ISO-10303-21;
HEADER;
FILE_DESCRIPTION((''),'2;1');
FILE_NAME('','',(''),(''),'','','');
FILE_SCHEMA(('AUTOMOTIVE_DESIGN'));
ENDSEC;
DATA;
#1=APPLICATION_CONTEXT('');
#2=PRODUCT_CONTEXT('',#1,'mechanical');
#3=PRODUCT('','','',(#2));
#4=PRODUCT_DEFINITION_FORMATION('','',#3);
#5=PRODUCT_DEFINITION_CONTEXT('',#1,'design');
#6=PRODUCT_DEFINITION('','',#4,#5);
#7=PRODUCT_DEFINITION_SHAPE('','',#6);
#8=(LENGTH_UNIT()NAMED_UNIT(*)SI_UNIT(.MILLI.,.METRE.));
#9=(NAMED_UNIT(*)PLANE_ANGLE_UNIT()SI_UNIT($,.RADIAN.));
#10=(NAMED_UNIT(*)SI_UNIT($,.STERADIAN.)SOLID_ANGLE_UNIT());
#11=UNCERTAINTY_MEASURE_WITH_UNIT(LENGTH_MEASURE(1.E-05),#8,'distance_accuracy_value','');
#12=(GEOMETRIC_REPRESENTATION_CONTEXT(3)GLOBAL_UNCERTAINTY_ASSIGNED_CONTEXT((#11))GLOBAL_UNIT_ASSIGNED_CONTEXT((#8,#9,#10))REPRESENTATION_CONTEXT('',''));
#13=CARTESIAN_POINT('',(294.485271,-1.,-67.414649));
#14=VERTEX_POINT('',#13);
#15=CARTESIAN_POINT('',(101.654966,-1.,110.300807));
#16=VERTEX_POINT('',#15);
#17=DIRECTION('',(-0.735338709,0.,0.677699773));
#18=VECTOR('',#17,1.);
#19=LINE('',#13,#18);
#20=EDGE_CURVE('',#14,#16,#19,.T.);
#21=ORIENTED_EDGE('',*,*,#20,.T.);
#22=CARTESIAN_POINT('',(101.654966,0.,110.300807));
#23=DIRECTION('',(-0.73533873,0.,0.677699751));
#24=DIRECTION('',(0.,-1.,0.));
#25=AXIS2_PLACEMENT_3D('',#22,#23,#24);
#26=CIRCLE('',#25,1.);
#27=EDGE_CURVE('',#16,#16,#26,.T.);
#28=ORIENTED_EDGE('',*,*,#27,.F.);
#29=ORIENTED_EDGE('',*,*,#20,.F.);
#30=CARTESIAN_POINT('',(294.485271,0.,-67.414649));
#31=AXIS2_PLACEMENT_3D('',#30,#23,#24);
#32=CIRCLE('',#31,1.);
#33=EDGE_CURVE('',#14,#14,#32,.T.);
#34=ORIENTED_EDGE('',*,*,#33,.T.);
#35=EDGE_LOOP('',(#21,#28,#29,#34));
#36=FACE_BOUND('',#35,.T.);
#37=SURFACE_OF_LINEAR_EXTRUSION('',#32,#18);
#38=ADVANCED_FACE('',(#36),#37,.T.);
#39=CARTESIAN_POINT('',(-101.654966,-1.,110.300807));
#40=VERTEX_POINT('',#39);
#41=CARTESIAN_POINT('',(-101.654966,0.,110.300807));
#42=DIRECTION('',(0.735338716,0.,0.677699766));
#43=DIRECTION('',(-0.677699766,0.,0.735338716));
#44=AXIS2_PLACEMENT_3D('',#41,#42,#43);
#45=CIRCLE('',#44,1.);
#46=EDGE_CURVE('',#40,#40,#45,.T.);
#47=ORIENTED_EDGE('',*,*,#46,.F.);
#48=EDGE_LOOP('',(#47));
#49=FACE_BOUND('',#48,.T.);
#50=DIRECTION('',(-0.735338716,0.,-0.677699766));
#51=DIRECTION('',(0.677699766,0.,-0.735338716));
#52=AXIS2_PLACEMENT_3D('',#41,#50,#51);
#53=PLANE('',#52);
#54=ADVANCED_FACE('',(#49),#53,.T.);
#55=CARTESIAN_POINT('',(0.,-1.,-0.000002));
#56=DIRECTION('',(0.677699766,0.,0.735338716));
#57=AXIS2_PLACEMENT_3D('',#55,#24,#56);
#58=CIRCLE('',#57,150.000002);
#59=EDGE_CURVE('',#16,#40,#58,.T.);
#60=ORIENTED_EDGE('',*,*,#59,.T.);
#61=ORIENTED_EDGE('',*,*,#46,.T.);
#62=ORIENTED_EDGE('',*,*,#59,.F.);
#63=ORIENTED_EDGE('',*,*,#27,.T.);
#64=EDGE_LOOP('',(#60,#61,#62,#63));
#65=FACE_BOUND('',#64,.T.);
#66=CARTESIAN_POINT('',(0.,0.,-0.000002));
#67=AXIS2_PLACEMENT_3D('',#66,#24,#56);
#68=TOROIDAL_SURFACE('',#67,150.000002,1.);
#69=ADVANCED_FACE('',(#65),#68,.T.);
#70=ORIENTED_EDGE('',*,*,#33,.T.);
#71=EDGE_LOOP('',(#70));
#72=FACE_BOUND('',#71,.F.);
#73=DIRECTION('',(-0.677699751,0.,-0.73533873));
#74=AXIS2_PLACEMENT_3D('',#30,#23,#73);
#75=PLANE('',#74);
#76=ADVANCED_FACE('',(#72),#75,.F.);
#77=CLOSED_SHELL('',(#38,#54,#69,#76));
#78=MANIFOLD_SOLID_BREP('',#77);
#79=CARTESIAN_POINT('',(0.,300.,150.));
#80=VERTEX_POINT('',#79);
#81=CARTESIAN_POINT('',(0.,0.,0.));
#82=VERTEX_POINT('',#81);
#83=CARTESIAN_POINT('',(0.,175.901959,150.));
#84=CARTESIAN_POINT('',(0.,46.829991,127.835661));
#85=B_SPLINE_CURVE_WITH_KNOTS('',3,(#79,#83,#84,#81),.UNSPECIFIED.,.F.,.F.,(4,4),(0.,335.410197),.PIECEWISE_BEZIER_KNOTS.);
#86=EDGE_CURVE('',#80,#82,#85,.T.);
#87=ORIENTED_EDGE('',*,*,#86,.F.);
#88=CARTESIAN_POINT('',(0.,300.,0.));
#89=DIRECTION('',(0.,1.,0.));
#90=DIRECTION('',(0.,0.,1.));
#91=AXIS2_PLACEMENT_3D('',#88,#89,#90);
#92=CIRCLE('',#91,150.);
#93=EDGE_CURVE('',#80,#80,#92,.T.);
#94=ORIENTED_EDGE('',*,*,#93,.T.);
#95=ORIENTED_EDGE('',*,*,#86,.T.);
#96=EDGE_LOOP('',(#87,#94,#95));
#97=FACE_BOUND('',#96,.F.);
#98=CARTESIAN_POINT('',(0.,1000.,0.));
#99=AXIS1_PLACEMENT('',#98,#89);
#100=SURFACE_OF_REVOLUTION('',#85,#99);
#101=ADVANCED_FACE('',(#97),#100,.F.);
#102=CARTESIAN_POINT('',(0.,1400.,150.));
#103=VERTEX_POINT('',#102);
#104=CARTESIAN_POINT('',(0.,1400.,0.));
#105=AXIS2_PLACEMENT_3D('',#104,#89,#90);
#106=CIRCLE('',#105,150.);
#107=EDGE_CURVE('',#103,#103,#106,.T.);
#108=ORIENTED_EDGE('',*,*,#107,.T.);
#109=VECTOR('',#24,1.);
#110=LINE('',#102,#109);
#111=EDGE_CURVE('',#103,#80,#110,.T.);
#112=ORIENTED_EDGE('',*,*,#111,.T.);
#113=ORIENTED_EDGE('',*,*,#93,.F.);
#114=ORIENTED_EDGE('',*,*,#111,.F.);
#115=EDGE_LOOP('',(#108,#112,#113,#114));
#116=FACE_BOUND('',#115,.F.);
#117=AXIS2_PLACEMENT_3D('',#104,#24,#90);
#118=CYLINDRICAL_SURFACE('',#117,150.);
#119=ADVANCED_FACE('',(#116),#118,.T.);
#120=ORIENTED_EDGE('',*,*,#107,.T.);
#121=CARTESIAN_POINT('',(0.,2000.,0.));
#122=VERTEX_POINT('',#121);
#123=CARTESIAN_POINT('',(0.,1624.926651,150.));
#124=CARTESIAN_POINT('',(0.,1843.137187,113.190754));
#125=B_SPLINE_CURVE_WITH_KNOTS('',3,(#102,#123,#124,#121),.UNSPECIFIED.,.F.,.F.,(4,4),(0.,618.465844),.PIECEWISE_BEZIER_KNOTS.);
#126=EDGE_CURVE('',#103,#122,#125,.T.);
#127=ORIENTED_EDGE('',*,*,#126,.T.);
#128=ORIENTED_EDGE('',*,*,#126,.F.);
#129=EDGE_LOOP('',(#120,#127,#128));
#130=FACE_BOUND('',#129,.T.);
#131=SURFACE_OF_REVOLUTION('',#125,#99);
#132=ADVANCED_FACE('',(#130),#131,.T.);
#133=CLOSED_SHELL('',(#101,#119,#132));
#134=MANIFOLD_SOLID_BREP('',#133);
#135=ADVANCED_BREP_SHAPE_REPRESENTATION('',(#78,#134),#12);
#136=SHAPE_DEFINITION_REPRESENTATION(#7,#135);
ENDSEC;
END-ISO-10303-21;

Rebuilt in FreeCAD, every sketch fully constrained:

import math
import FreeCAD as App
import Part
import Sketcher
Q = App.Units.Quantity

doc = App.newDocument("Part")
params = doc.addObject("Spreadsheet::Sheet", "Params")
for row, (alias, value) in enumerate([
    ("revolution_angle", "360 deg"),
    ("sketch2_diameter", "2 mm"),
    ("sketch3_radius", "150.000002 mm"),
], start=1):
    params.set(f"A{row}", alias)
    params.set(f"B{row}", "=" + value)
    params.setAlias(f"B{row}", alias)

body = doc.addObject("PartDesign::Body", "Body")

sketch1 = body.newObject("Sketcher::SketchObject", "Sketch")
sketch1.AttachmentSupport = (doc.getObject("YZ_Plane"), [""])
sketch1.MapMode = "FlatFace"
sketch1.addGeometry(Part.LineSegment(App.Vector(1400, 150, 0), App.Vector(300, 150, 0)), False)
sketch1.addGeometry(Part.BSplineCurve([App.Vector(300, 150, 0), App.Vector(175.901959, 150, 0), App.Vector(46.829991, 127.835661, 0), App.Vector(0, 0, 0)], [4, 4], [0, 335.410197], False, 3, [1, 1, 1, 1], False), False)
sketch1.addGeometry(Part.LineSegment(App.Vector(0, 0, 0), App.Vector(2000, 0, 0)), False)
sketch1.addGeometry(Part.BSplineCurve([App.Vector(1400, 150, 0), App.Vector(1624.926651, 150, 0), App.Vector(1843.137187, 113.190754, 0), App.Vector(2000, 0, 0)], [4, 4], [0, 618.465844], False, 3, [1, 1, 1, 1], False), False)
sketch1.addConstraint(Sketcher.Constraint("Block", 1))
sketch1.addConstraint(Sketcher.Constraint("Block", 3))
sketch1.addConstraint(Sketcher.Constraint("Coincident", 0, 2, 1, 1))
sketch1.addConstraint(Sketcher.Constraint("Coincident", 1, 2, 2, 1))
sketch1.addConstraint(Sketcher.Constraint("Coincident", 2, 2, 3, 2))
sketch1.addConstraint(Sketcher.Constraint("Coincident", 3, 1, 0, 1))
revolution = body.newObject("PartDesign::Revolution", "Revolution")
revolution.Profile = sketch1
revolution.ReferenceAxis = (sketch1, ["H_Axis"])
revolution.setExpression("Angle", "Params.revolution_angle")
body2 = doc.addObject("PartDesign::Body", "Body001")

sketch2 = body2.newObject("Sketcher::SketchObject", "Sketch001")
sketch2.Placement = App.Placement(App.Vector(192.830305, 0, -177.715455), App.Rotation(App.Vector(0, -1, 0), App.Vector(0.677699751, 0, 0.73533873), App.Vector(-0.73533873, 0, 0.677699751), "ZXY"))
sketch2.addGeometry(Part.Circle(App.Vector(0, 150, 0), App.Vector(0, 0, 1), 1), False)
sketch2.addConstraint(Sketcher.Constraint("PointOnObject", 0, 3, -2))
sketch2.addConstraint(Sketcher.Constraint("Diameter", 0, Q("2 mm")))
sketch2.addConstraint(Sketcher.Constraint("DistanceY", -1, 1, 0, 3, Q("150 mm")))
sketch2.setExpression("Constraints[1]", "Params.sketch2_diameter")

sketch3 = body2.newObject("Sketcher::SketchObject", "Sketch002")
sketch3.AttachmentSupport = (doc.getObject("XZ_Plane001"), [""])
sketch3.MapMode = "FlatFace"
sketch3.addGeometry(Part.LineSegment(App.Vector(294, -67, 0), App.Vector(102, 110, 0)), False)
sketch3.addGeometry(Part.ArcOfCircle(Part.Circle(App.Vector(0, 0, 0), App.Vector(0, 0, 1), 150), math.radians(47), math.radians(133)), False)
sketch3.addConstraint(Sketcher.Constraint("Tangent", 0, 2, 1, 1))
sketch3.addConstraint(Sketcher.Constraint("Coincident", 1, 3, -1, 1))
sketch3.addConstraint(Sketcher.Constraint("Horizontal", 0, 2, 1, 2))
sketch3.addConstraint(Sketcher.Constraint("Radius", 1, Q("150.000002 mm")))
sketch3.addConstraint(Sketcher.Constraint("Distance", 0, Q("262.233312 mm")))
sketch3.addConstraint(Sketcher.Constraint("DistanceX", -1, 1, 0, 1, Q("294.485271 mm")))
sketch3.setExpression("Constraints[3]", "Params.sketch3_radius")
doc.recompute()

additivepipe = body2.newObject("PartDesign::AdditivePipe", "AdditivePipe")
additivepipe.Profile = sketch2
additivepipe.Spine = (sketch3, ["Edge1", "Edge2"])

doc.recompute()
